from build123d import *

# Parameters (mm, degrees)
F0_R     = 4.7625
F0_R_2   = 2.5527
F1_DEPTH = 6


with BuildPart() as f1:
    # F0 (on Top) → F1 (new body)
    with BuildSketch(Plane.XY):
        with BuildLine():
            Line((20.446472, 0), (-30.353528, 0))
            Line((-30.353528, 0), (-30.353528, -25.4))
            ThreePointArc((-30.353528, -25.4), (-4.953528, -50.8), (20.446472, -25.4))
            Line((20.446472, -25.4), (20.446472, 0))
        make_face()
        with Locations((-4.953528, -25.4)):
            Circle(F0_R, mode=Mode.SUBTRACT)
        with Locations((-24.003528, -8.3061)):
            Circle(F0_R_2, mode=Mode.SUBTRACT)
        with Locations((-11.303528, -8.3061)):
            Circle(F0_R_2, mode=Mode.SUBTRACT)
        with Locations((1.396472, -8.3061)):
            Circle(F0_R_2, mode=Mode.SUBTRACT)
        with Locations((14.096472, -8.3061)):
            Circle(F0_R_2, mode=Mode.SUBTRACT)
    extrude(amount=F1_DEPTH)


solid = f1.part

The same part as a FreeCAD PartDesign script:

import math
import FreeCAD as App
import Part
import Sketcher
from FreeCAD import Vector
Q = App.Units.Quantity

doc = App.newDocument("Part")
body = doc.addObject("PartDesign::Body", "Body")

sketch1 = body.newObject("Sketcher::SketchObject", "Sketch")
sketch1.AttachmentSupport = (doc.getObject("XY_Plane"), [""])
sketch1.MapMode = "FlatFace"
sketch1.addGeometry(Part.LineSegment(Vector(20.4, 0, 0), Vector(-30.4, 0, 0)), False)
sketch1.addGeometry(Part.LineSegment(Vector(-30.4, 0, 0), Vector(-30.4, -25.4, 0)), False)
sketch1.addGeometry(Part.ArcOfCircle(Part.Circle(Vector(-5, -25.4, 0), Vector(0, 0, 1), 25.4), math.radians(180), math.radians(360)), False)
sketch1.addGeometry(Part.LineSegment(Vector(20.4, -25.4, 0), Vector(20.4, 0, 0)), False)
sketch1.addGeometry(Part.Circle(Vector(-5, -25.4, 0), Vector(0, 0, 1), 4.8), False)
sketch1.addGeometry(Part.Circle(Vector(-24, -8.3, 0), Vector(0, 0, 1), 2.6), False)
sketch1.addGeometry(Part.Circle(Vector(-11.3, -8.3, 0), Vector(0, 0, 1), 2.6), False)
sketch1.addGeometry(Part.Circle(Vector(1.4, -8.3, 0), Vector(0, 0, 1), 2.6), False)
sketch1.addGeometry(Part.Circle(Vector(14.1, -8.3, 0), Vector(0, 0, 1), 2.6), False)
sketch1.addConstraint(Sketcher.Constraint("Coincident", 0, 2, 1, 1))
sketch1.addConstraint(Sketcher.Constraint("Tangent", 1, 2, 2, 1))
sketch1.addConstraint(Sketcher.Constraint("Tangent", 2, 2, 3, 1))
sketch1.addConstraint(Sketcher.Constraint("Coincident", 3, 2, 0, 1))
sketch1.addConstraint(Sketcher.Constraint("Horizontal", 0))
sketch1.addConstraint(Sketcher.Constraint("Vertical", 1))
sketch1.addConstraint(Sketcher.Constraint("Vertical", 3))
sketch1.addConstraint(Sketcher.Constraint("Coincident", 4, 3, 2, 3))
sketch1.addConstraint(Sketcher.Constraint("Equal", 5, 6))
sketch1.addConstraint(Sketcher.Constraint("Equal", 6, 7))
sketch1.addConstraint(Sketcher.Constraint("Equal", 7, 8))
sketch1.addConstraint(Sketcher.Constraint("PointOnObject", 0, 2, -1))
sketch1.addConstraint(Sketcher.Constraint("Horizontal", 5, 3, 6, 3))
sketch1.addConstraint(Sketcher.Constraint("Horizontal", 6, 3, 7, 3))
sketch1.addConstraint(Sketcher.Constraint("Horizontal", 7, 3, 8, 3))
sketch1.addConstraint(Sketcher.Constraint("Radius", 2, Q("1 in")))
sketch1.addConstraint(Sketcher.Constraint("DistanceY", 1, 2, 1, 1, Q("1 in")))
sketch1.addConstraint(Sketcher.Constraint("Diameter", 4, Q("0.375 in")))
sketch1.addConstraint(Sketcher.Constraint("Diameter", 5, Q("0.201 in")))
sketch1.addConstraint(Sketcher.Constraint("DistanceX", 5, 3, 7, 3, Q("1 in")))
sketch1.addConstraint(Sketcher.Constraint("DistanceX", 6, 3, 8, 3, Q("1 in")))
sketch1.addConstraint(Sketcher.Constraint("DistanceX", 5, 3, 6, 3, Q("0.5 in")))
sketch1.addConstraint(Sketcher.Constraint("DistanceX", 5, 3, 2, 3, Q("0.75 in")))
sketch1.addConstraint(Sketcher.Constraint("DistanceY", 5, 3, -1, 1, 8.3061))
sketch1.addConstraint(Sketcher.Constraint("DistanceX", 2, 3, -1, 1, 4.953528))
pad1 = body.newObject("PartDesign::Pad", "Pad")
pad1.Profile = sketch1
pad1.Length = 6

doc.recompute()
